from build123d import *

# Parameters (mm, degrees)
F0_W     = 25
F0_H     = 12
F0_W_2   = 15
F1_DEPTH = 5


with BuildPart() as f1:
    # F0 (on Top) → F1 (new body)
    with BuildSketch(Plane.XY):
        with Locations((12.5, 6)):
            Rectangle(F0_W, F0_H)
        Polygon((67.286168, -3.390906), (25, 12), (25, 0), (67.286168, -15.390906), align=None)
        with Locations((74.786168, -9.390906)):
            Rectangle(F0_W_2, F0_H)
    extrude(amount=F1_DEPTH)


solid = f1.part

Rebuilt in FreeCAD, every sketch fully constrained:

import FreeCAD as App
import Part
import Sketcher
from FreeCAD import Vector
Q = App.Units.Quantity


def add_polygon(sketch, points):
    """Adds a closed chain of lines whose ends are joined by coincident constraints."""
    first, n = sketch.GeometryCount, len(points)
    for a, b in zip(points, points[1:] + points[:1]):
        sketch.addGeometry(Part.LineSegment(App.Vector(*a, 0), App.Vector(*b, 0)), False)
    for i in range(n):
        sketch.addConstraint(Sketcher.Constraint("Coincident", first + i, 2, first + (i + 1) % n, 1))

doc = App.newDocument("Part")
body = doc.addObject("PartDesign::Body", "Body")

sketch1 = body.newObject("Sketcher::SketchObject", "Sketch")
sketch1.AttachmentSupport = (doc.getObject("XY_Plane"), [""])
sketch1.MapMode = "FlatFace"
add_polygon(sketch1, [(0, 12), (0, 0), (25, 0), (67.286168, -15.390906), (82.286168, -15.390906), (82.286168, -3.390906), (67.286168, -3.390906), (25, 12)])
sketch1.addConstraint(Sketcher.Constraint("Vertical", 0))
sketch1.addConstraint(Sketcher.Constraint("Horizontal", 1))
sketch1.addConstraint(Sketcher.Constraint("Horizontal", 3))
sketch1.addConstraint(Sketcher.Constraint("Vertical", 4))
sketch1.addConstraint(Sketcher.Constraint("Horizontal", 5))
sketch1.addConstraint(Sketcher.Constraint("Horizontal", 7))
sketch1.addConstraint(Sketcher.Constraint("Coincident", 0, 2, -1, 1))
sketch1.addConstraint(Sketcher.Constraint("Parallel", 2, 6))
sketch1.addConstraint(Sketcher.Constraint("Vertical", 2, 2, 5, 2))
sketch1.addConstraint(Sketcher.Constraint("Vertical", 1, 2, 6, 2))
sketch1.addConstraint(Sketcher.Constraint("DistanceX", 1, 1, 1, 2, 25.0))
sketch1.addConstraint(Sketcher.Constraint("DistanceX", 3, 1, 3, 2, 15.0))
sketch1.addConstraint(Sketcher.Constraint("DistanceY", 0, 2, 0, 1, 12.0))
sketch1.addConstraint(Sketcher.Constraint("Angle", 2, Q("-19.999999 deg")))
sketch1.addConstraint(Sketcher.Constraint("Distance", 2, 45.0))
pad1 = body.newObject("PartDesign::Pad", "Pad")
pad1.Profile = sketch1
pad1.Length = 5

doc.recompute()
